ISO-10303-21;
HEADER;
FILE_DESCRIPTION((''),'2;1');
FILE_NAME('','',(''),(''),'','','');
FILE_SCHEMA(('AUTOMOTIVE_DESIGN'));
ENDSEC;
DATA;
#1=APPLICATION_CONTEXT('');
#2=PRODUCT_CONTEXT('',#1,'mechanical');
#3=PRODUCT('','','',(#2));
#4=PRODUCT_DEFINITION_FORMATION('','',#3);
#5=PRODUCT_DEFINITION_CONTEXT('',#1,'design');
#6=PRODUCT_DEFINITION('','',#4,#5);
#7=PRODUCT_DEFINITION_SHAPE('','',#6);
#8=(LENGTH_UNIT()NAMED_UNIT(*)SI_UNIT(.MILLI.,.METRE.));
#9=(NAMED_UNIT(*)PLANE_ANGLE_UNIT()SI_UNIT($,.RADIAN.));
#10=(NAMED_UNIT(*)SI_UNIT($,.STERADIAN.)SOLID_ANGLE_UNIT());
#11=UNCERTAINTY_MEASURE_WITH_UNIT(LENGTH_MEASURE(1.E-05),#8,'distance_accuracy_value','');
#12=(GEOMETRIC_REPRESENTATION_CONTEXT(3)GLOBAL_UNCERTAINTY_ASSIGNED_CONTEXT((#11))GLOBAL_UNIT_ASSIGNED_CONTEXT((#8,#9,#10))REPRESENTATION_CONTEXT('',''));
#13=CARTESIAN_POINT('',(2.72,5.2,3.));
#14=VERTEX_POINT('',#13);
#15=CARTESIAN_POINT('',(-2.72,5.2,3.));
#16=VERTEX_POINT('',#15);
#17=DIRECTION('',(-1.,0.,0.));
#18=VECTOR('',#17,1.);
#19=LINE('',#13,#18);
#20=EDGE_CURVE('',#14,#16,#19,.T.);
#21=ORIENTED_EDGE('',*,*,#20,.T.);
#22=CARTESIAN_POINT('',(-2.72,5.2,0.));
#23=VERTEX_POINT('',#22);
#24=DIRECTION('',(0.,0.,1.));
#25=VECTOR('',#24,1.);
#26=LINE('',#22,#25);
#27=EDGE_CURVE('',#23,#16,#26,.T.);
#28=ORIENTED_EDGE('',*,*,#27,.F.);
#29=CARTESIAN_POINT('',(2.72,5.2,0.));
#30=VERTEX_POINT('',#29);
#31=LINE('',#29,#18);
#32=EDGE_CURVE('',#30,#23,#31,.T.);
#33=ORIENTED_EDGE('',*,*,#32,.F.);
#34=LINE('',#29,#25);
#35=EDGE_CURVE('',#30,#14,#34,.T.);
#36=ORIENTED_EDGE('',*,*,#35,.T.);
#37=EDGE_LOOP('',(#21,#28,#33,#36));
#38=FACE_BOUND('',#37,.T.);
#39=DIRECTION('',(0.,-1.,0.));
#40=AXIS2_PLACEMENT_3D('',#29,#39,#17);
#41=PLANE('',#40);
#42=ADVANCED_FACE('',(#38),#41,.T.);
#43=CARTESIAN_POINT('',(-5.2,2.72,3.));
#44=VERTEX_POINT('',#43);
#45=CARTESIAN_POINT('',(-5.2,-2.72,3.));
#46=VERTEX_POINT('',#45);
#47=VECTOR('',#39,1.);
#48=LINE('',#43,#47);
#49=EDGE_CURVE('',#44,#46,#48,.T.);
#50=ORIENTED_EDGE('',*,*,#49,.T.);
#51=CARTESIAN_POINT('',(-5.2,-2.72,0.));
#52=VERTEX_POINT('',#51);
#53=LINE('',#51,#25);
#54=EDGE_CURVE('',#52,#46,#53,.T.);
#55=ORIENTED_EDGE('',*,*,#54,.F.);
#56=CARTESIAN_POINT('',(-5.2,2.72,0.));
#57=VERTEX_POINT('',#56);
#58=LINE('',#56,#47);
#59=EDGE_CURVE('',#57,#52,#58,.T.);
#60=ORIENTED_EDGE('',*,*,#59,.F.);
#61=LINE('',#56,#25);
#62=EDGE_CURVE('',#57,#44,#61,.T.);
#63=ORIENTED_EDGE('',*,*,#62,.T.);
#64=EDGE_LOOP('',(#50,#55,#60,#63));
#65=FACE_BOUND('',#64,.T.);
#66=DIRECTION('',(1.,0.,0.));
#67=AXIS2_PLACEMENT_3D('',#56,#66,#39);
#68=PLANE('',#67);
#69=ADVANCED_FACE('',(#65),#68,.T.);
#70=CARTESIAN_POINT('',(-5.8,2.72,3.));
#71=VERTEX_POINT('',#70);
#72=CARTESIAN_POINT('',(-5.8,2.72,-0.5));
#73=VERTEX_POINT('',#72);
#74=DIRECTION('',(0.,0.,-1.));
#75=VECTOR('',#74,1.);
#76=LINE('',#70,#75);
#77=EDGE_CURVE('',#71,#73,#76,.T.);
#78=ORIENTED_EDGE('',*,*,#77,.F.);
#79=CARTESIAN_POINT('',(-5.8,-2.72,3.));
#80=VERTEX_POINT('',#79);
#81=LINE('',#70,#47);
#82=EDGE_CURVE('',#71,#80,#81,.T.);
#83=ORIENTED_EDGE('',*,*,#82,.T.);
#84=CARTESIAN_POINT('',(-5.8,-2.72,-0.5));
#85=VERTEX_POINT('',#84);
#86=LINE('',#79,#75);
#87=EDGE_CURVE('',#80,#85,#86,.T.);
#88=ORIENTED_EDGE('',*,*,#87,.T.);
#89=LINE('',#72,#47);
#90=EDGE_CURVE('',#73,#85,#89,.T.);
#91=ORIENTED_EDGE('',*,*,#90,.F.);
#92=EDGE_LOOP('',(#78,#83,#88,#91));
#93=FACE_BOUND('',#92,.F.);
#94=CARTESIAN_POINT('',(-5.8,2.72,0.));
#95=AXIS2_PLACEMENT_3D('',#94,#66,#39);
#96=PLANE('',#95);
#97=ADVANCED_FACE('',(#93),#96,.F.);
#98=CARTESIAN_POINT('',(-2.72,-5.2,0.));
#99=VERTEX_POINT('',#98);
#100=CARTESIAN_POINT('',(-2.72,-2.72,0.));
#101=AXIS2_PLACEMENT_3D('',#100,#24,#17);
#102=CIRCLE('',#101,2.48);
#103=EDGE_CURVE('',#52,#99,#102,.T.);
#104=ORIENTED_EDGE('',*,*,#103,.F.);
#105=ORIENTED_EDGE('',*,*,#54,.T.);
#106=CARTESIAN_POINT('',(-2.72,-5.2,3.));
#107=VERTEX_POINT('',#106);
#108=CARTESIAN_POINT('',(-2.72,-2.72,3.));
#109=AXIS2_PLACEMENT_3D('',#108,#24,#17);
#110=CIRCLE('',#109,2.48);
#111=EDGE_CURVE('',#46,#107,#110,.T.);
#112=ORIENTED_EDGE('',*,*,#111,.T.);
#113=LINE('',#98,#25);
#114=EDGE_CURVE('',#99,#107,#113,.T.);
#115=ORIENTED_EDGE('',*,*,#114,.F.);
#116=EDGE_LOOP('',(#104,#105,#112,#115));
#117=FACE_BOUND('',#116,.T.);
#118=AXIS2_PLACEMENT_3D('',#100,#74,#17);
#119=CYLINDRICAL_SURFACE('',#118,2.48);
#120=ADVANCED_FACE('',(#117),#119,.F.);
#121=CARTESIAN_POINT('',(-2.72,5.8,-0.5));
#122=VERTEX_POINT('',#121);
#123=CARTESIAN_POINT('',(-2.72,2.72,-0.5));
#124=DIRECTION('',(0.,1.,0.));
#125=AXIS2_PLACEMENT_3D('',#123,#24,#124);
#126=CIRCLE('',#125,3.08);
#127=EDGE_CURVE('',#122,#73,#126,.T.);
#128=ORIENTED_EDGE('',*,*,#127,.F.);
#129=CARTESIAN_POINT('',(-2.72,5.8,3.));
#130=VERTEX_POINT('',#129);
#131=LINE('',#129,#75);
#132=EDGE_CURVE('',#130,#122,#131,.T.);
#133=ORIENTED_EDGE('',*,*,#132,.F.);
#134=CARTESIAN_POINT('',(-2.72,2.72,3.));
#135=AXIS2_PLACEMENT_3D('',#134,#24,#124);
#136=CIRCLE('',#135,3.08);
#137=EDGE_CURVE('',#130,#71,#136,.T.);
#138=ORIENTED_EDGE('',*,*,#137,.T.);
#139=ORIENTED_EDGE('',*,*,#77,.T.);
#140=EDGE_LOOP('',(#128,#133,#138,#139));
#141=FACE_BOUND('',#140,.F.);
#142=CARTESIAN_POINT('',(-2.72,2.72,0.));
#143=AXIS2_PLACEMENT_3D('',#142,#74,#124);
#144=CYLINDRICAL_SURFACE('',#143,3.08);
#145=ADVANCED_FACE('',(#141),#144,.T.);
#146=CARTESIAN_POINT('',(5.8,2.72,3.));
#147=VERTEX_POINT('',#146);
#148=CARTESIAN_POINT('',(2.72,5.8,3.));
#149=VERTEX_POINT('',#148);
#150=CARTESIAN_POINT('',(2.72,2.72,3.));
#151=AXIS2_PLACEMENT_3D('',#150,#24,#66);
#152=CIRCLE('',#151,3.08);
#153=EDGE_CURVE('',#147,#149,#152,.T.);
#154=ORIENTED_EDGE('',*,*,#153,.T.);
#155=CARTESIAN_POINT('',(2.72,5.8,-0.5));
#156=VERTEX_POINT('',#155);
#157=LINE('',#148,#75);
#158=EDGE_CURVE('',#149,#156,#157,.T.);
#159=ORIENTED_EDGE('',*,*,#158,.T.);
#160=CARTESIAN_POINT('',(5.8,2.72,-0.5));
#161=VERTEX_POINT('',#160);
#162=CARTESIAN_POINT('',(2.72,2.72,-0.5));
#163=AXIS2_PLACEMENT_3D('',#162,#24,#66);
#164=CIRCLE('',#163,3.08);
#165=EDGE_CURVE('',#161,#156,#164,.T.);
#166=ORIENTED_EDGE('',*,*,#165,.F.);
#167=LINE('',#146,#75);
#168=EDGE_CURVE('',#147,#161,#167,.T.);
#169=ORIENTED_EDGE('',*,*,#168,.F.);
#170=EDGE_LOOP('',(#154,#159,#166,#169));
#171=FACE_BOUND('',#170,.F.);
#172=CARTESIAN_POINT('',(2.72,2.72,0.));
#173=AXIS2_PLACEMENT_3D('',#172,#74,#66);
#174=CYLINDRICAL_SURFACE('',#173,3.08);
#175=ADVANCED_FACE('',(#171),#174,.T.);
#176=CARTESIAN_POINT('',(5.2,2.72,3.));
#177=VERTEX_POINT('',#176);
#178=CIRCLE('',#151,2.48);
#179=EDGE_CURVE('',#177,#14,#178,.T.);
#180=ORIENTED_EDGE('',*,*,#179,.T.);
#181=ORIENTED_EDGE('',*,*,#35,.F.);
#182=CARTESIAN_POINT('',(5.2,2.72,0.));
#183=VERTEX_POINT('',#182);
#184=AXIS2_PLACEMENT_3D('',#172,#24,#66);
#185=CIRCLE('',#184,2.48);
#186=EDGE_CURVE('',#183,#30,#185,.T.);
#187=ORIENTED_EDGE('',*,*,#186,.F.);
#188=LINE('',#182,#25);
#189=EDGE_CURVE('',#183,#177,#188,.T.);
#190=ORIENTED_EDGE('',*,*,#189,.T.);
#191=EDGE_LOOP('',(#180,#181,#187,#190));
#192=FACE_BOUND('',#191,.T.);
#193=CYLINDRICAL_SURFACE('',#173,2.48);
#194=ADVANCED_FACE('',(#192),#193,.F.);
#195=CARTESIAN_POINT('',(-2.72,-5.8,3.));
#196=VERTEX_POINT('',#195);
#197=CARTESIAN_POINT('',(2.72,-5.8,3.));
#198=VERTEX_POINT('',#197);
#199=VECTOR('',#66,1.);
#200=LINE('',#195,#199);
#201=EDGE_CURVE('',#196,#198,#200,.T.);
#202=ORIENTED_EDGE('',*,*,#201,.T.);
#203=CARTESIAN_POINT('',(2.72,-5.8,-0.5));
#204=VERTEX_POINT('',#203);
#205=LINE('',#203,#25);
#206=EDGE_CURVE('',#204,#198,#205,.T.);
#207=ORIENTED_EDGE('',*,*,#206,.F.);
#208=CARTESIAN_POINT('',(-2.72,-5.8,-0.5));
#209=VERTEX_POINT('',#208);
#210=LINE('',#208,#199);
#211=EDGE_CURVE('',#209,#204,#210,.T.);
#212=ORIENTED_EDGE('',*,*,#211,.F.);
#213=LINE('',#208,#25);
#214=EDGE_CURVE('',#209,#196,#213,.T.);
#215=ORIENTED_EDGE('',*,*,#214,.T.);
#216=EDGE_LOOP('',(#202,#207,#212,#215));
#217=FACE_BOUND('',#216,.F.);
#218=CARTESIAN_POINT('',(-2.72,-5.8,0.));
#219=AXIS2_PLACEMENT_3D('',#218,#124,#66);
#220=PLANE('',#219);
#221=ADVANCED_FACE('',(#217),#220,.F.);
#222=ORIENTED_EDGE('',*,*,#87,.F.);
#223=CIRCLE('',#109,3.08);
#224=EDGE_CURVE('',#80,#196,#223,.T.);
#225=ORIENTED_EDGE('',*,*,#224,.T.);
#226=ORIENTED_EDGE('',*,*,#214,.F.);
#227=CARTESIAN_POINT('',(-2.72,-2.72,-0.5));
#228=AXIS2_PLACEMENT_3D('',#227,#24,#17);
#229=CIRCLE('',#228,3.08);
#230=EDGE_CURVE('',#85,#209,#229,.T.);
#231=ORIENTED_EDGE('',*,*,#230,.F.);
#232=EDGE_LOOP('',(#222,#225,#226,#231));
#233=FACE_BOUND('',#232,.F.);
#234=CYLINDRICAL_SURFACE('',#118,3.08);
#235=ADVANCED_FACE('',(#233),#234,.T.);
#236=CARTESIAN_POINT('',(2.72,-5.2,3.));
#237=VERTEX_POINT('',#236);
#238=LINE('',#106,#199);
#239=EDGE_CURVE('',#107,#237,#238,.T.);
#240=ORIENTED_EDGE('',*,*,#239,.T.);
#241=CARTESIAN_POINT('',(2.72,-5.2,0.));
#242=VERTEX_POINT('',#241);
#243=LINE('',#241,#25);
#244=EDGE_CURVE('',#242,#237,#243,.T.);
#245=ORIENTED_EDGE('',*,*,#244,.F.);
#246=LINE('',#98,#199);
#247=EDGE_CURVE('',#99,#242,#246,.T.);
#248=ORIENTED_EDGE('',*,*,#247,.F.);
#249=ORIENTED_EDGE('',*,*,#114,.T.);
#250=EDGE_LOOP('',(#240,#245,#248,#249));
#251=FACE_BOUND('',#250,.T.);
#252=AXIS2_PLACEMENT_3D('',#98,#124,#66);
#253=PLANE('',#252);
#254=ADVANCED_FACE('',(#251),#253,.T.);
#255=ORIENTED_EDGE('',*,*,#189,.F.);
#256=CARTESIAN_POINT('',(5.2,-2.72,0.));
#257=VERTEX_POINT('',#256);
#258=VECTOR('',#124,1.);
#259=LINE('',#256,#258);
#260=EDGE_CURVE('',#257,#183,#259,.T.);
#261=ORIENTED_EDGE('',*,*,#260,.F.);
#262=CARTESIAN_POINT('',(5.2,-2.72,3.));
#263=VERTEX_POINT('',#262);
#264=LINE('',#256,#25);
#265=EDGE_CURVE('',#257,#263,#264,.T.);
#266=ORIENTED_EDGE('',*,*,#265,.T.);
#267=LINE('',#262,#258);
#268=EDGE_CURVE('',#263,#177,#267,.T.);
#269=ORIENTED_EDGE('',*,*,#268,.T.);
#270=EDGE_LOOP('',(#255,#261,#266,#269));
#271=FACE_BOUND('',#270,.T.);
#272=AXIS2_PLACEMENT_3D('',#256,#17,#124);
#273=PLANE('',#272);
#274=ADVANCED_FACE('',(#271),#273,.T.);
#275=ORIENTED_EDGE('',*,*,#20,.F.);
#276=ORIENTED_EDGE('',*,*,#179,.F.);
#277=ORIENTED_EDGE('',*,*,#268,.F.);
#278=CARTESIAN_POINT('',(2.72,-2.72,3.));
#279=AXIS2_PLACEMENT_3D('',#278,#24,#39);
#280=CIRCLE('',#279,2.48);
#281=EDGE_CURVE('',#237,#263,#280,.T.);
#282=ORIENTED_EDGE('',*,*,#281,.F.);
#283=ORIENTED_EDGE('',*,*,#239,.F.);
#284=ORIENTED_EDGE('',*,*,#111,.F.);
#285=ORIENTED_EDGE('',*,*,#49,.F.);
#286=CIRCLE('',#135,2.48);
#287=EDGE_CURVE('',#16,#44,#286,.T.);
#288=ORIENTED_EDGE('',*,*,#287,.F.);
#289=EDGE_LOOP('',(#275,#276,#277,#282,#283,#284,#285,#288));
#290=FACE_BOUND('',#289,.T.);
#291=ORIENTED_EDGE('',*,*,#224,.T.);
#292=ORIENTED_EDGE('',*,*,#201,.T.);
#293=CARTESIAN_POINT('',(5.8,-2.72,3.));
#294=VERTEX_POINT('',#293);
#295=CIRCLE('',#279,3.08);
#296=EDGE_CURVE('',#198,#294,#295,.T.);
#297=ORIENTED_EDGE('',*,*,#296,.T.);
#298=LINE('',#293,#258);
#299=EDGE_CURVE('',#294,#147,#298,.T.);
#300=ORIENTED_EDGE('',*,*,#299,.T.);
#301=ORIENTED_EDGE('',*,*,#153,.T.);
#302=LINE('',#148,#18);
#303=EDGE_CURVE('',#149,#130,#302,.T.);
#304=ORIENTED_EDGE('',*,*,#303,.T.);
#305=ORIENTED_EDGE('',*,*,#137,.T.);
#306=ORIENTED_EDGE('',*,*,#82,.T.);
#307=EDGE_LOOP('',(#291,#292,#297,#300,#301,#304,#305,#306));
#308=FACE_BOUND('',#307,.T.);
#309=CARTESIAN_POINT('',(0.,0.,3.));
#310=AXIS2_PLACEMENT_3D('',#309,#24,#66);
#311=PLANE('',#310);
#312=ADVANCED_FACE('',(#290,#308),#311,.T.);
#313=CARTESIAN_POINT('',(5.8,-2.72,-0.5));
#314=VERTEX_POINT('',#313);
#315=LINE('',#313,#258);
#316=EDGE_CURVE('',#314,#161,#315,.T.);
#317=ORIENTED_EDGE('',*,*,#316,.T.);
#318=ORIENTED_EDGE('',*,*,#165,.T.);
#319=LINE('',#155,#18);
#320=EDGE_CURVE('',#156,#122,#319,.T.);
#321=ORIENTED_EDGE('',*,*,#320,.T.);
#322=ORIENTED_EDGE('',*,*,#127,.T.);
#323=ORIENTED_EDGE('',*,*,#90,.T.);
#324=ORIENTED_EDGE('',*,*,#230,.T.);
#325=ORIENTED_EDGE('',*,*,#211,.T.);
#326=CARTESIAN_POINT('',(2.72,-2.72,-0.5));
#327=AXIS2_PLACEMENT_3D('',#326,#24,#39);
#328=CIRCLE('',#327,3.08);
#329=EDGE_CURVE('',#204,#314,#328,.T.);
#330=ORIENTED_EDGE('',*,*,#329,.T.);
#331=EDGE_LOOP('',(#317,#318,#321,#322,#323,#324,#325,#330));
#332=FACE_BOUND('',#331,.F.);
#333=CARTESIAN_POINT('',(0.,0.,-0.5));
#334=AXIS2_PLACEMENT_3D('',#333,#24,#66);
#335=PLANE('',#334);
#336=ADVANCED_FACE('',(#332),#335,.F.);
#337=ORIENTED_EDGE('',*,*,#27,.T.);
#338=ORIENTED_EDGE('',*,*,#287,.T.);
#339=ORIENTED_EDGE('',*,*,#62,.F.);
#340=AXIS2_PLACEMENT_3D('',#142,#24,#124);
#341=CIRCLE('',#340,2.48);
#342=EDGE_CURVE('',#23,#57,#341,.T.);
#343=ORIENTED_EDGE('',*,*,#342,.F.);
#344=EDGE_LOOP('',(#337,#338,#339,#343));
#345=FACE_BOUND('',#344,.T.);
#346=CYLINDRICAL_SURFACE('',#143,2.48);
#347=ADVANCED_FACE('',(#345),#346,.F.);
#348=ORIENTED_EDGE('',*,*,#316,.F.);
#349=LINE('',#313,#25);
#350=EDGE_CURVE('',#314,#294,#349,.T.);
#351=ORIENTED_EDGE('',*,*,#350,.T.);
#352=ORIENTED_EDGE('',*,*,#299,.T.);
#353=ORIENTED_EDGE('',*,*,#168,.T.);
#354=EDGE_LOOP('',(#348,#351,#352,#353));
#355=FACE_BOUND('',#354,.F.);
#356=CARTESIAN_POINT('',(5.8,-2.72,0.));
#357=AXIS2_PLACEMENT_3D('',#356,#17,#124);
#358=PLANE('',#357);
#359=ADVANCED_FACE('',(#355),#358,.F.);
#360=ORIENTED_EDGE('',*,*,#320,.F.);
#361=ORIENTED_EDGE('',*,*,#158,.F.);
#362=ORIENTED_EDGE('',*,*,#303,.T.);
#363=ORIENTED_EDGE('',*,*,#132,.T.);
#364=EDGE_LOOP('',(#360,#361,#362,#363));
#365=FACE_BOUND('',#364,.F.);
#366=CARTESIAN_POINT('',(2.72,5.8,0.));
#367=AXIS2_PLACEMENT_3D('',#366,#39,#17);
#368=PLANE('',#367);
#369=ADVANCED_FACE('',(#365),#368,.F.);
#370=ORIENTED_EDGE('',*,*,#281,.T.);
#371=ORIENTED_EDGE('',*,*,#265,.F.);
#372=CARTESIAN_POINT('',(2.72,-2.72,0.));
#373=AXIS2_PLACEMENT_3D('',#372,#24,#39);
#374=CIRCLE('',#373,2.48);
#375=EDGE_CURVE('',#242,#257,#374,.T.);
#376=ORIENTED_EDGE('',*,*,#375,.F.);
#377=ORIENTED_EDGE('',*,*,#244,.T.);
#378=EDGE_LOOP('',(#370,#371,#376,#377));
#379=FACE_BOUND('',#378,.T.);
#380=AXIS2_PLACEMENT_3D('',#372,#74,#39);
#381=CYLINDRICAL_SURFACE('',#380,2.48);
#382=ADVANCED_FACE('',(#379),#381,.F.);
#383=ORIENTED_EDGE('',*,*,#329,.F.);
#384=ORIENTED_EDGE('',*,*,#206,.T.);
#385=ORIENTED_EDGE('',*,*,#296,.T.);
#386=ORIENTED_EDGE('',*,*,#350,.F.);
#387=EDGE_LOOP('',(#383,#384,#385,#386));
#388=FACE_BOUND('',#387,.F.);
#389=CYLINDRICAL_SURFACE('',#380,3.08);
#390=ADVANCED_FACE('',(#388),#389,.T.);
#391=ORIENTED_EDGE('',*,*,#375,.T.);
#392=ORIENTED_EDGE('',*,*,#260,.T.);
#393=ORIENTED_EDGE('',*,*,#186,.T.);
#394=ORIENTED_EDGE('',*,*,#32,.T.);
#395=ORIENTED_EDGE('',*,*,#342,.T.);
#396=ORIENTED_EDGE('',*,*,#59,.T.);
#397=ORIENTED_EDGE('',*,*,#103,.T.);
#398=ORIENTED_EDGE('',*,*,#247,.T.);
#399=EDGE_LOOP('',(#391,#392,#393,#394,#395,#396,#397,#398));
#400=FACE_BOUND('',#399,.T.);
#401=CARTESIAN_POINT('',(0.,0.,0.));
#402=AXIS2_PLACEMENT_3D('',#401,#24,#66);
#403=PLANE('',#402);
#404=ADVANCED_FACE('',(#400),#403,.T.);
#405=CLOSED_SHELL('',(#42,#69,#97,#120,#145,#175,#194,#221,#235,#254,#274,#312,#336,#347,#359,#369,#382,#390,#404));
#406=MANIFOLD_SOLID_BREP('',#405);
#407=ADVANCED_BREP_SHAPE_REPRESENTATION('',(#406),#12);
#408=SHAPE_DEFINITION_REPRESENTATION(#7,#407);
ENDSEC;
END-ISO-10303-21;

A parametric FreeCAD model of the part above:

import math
import FreeCAD as App
import Part
import Sketcher
Q = App.Units.Quantity

doc = App.newDocument("Part")
body = doc.addObject("PartDesign::Body", "Body")

sketch1 = body.newObject("Sketcher::SketchObject", "Sketch")
sketch1.AttachmentSupport = (doc.getObject("XY_Plane"), [""])
sketch1.MapMode = "FlatFace"
sketch1.addGeometry(Part.ArcOfCircle(Part.Circle(App.Vector(-2.7, -2.7, 0), App.Vector(0, 0, 1), 3.1), math.radians(180), math.radians(270)), False)
sketch1.addGeometry(Part.LineSegment(App.Vector(-2.7, -5.8, 0), App.Vector(2.7, -5.8, 0)), False)
sketch1.addGeometry(Part.ArcOfCircle(Part.Circle(App.Vector(2.7, -2.7, 0), App.Vector(0, 0, 1), 3.1), math.radians(-90), math.radians(0)), False)
sketch1.addGeometry(Part.LineSegment(App.Vector(5.8, -2.7, 0), App.Vector(5.8, 2.7, 0)), False)
sketch1.addGeometry(Part.ArcOfCircle(Part.Circle(App.Vector(2.7, 2.7, 0), App.Vector(0, 0, 1), 3.1), math.radians(0), math.radians(90)), False)
sketch1.addGeometry(Part.LineSegment(App.Vector(2.7, 5.8, 0), App.Vector(-2.7, 5.8, 0)), False)
sketch1.addGeometry(Part.ArcOfCircle(Part.Circle(App.Vector(-2.7, 2.7, 0), App.Vector(0, 0, 1), 3.1), math.radians(90), math.radians(180)), False)
sketch1.addGeometry(Part.LineSegment(App.Vector(-5.8, 2.7, 0), App.Vector(-5.8, -2.7, 0)), False)
sketch1.addGeometry(Part.LineSegment(App.Vector(2.7, -5.2, 0), App.Vector(-2.7, -5.2, 0)), False)
sketch1.addGeometry(Part.ArcOfCircle(Part.Circle(App.Vector(-2.7, -2.7, 0), App.Vector(0, 0, 1), 2.5), math.radians(180), math.radians(270)), False)
sketch1.addGeometry(Part.LineSegment(App.Vector(-5.2, -2.7, 0), App.Vector(-5.2, 2.7, 0)), False)
sketch1.addGeometry(Part.ArcOfCircle(Part.Circle(App.Vector(-2.7, 2.7, 0), App.Vector(0, 0, 1), 2.5), math.radians(90), math.radians(180)), False)
sketch1.addGeometry(Part.LineSegment(App.Vector(-2.7, 5.2, 0), App.Vector(2.7, 5.2, 0)), False)
sketch1.addGeometry(Part.ArcOfCircle(Part.Circle(App.Vector(2.7, 2.7, 0), App.Vector(0, 0, 1), 2.5), math.radians(0), math.radians(90)), False)
sketch1.addGeometry(Part.LineSegment(App.Vector(5.2, 2.7, 0), App.Vector(5.2, -2.7, 0)), False)
sketch1.addGeometry(Part.ArcOfCircle(Part.Circle(App.Vector(2.7, -2.7, 0), App.Vector(0, 0, 1), 2.5), math.radians(-90), math.radians(0)), False)
sketch1.addConstraint(Sketcher.Constraint("Tangent", 0, 2, 1, 1))
sketch1.addConstraint(Sketcher.Constraint("Tangent", 1, 2, 2, 1))
sketch1.addConstraint(Sketcher.Constraint("Tangent", 2, 2, 3, 1))
sketch1.addConstraint(Sketcher.Constraint("Tangent", 3, 2, 4, 1))
sketch1.addConstraint(Sketcher.Constraint("Tangent", 4, 2, 5, 1))
sketch1.addConstraint(Sketcher.Constraint("Tangent", 5, 2, 6, 1))
sketch1.addConstraint(Sketcher.Constraint("Tangent", 6, 2, 7, 1))
sketch1.addConstraint(Sketcher.Constraint("Tangent", 7, 2, 0, 1))
sketch1.addConstraint(Sketcher.Constraint("Tangent", 8, 2, 9, 2))
sketch1.addConstraint(Sketcher.Constraint("Tangent", 9, 1, 10, 1))
sketch1.addConstraint(Sketcher.Constraint("Tangent", 10, 2, 11, 2))
sketch1.addConstraint(Sketcher.Constraint("Tangent", 11, 1, 12, 1))
sketch1.addConstraint(Sketcher.Constraint("Tangent", 12, 2, 13, 2))
sketch1.addConstraint(Sketcher.Constraint("Tangent", 13, 1, 14, 1))
sketch1.addConstraint(Sketcher.Constraint("Tangent", 14, 2, 15, 2))
sketch1.addConstraint(Sketcher.Constraint("Tangent", 15, 1, 8, 1))
sketch1.addConstraint(Sketcher.Constraint("Horizontal", 1))
sketch1.addConstraint(Sketcher.Constraint("Vertical", 3))
sketch1.addConstraint(Sketcher.Constraint("Horizontal", 5))
sketch1.addConstraint(Sketcher.Constraint("Vertical", 7))
sketch1.addConstraint(Sketcher.Constraint("Horizontal", 8))
sketch1.addConstraint(Sketcher.Constraint("Vertical", 10))
sketch1.addConstraint(Sketcher.Constraint("Horizontal", 12))
sketch1.addConstraint(Sketcher.Constraint("Vertical", 14))
sketch1.addConstraint(Sketcher.Constraint("Coincident", 9, 3, 0, 3))
sketch1.addConstraint(Sketcher.Constraint("Coincident", 11, 3, 6, 3))
sketch1.addConstraint(Sketcher.Constraint("Coincident", 13, 3, 4, 3))
sketch1.addConstraint(Sketcher.Constraint("Equal", 0, 2))
sketch1.addConstraint(Sketcher.Constraint("Equal", 2, 4))
sketch1.addConstraint(Sketcher.Constraint("Equal", 4, 6))
sketch1.addConstraint(Sketcher.Constraint("Equal", 13, 15))
sketch1.addConstraint(Sketcher.Constraint("Symmetric", 0, 3, 4, 3, -1, 1))
sketch1.addConstraint(Sketcher.Constraint("Equal", 12, 3))
sketch1.addConstraint(Sketcher.Constraint("Radius", 0, Q("3.08 mm")))
sketch1.addConstraint(Sketcher.Constraint("Radius", 9, Q("2.48 mm")))
sketch1.addConstraint(Sketcher.Constraint("DistanceX", 1, 1, 1, 2, Q("5.44 mm")))
pad1 = body.newObject("PartDesign::Pad", "Pad")
pad1.Profile = sketch1
pad1.Length = 3

sketch2 = body.newObject("Sketcher::SketchObject", "Sketch001")
sketch2.AttachmentSupport = (doc.getObject("XY_Plane"), [""])
sketch2.MapMode = "FlatFace"
sketch2.addGeometry(Part.ArcOfCircle(Part.Circle(App.Vector(-2.7, -2.7, 0), App.Vector(0, 0, 1), 3.1), math.radians(180), math.radians(270)), False)
sketch2.addGeometry(Part.LineSegment(App.Vector(-2.7, -5.8, 0), App.Vector(2.7, -5.8, 0)), False)
sketch2.addGeometry(Part.ArcOfCircle(Part.Circle(App.Vector(2.7, -2.7, 0), App.Vector(0, 0, 1), 3.1), math.radians(-90), math.radians(0)), False)
sketch2.addGeometry(Part.LineSegment(App.Vector(5.8, -2.7, 0), App.Vector(5.8, 2.7, 0)), False)
sketch2.addGeometry(Part.ArcOfCircle(Part.Circle(App.Vector(2.7, 2.7, 0), App.Vector(0, 0, 1), 3.1), math.radians(0), math.radians(90)), False)
sketch2.addGeometry(Part.LineSegment(App.Vector(2.7, 5.8, 0), App.Vector(-2.7, 5.8, 0)), False)
sketch2.addGeometry(Part.ArcOfCircle(Part.Circle(App.Vector(-2.7, 2.7, 0), App.Vector(0, 0, 1), 3.1), math.radians(90), math.radians(180)), False)
sketch2.addGeometry(Part.LineSegment(App.Vector(-5.8, 2.7, 0), App.Vector(-5.8, -2.7, 0)), False)
sketch2.addConstraint(Sketcher.Constraint("Tangent", 0, 2, 1, 1))
sketch2.addConstraint(Sketcher.Constraint("Tangent", 1, 2, 2, 1))
sketch2.addConstraint(Sketcher.Constraint("Tangent", 2, 2, 3, 1))
sketch2.addConstraint(Sketcher.Constraint("Tangent", 3, 2, 4, 1))
sketch2.addConstraint(Sketcher.Constraint("Tangent", 4, 2, 5, 1))
sketch2.addConstraint(Sketcher.Constraint("Tangent", 5, 2, 6, 1))
sketch2.addConstraint(Sketcher.Constraint("Tangent", 6, 2, 7, 1))
sketch2.addConstraint(Sketcher.Constraint("Tangent", 7, 2, 0, 1))
sketch2.addConstraint(Sketcher.Constraint("Horizontal", 1))
sketch2.addConstraint(Sketcher.Constraint("Vertical", 3))
sketch2.addConstraint(Sketcher.Constraint("Horizontal", 5))
sketch2.addConstraint(Sketcher.Constraint("Vertical", 7))
sketch2.addConstraint(Sketcher.Constraint("Equal", 0, 2))
sketch2.addConstraint(Sketcher.Constraint("Equal", 2, 4))
sketch2.addConstraint(Sketcher.Constraint("Equal", 4, 6))
sketch2.addConstraint(Sketcher.Constraint("Symmetric", 0, 3, 4, 3, -1, 1))
sketch2.addConstraint(Sketcher.Constraint("Equal", 5, 3))
sketch2.addConstraint(Sketcher.Constraint("Radius", 0, Q("3.08 mm")))
sketch2.addConstraint(Sketcher.Constraint("DistanceX", 1, 1, 1, 2, Q("5.44 mm")))
pad2 = body.newObject("PartDesign::Pad", "Pad001")
pad2.Profile = sketch2
pad2.Length = 0.5
pad2.Reversed = True

doc.recompute()
